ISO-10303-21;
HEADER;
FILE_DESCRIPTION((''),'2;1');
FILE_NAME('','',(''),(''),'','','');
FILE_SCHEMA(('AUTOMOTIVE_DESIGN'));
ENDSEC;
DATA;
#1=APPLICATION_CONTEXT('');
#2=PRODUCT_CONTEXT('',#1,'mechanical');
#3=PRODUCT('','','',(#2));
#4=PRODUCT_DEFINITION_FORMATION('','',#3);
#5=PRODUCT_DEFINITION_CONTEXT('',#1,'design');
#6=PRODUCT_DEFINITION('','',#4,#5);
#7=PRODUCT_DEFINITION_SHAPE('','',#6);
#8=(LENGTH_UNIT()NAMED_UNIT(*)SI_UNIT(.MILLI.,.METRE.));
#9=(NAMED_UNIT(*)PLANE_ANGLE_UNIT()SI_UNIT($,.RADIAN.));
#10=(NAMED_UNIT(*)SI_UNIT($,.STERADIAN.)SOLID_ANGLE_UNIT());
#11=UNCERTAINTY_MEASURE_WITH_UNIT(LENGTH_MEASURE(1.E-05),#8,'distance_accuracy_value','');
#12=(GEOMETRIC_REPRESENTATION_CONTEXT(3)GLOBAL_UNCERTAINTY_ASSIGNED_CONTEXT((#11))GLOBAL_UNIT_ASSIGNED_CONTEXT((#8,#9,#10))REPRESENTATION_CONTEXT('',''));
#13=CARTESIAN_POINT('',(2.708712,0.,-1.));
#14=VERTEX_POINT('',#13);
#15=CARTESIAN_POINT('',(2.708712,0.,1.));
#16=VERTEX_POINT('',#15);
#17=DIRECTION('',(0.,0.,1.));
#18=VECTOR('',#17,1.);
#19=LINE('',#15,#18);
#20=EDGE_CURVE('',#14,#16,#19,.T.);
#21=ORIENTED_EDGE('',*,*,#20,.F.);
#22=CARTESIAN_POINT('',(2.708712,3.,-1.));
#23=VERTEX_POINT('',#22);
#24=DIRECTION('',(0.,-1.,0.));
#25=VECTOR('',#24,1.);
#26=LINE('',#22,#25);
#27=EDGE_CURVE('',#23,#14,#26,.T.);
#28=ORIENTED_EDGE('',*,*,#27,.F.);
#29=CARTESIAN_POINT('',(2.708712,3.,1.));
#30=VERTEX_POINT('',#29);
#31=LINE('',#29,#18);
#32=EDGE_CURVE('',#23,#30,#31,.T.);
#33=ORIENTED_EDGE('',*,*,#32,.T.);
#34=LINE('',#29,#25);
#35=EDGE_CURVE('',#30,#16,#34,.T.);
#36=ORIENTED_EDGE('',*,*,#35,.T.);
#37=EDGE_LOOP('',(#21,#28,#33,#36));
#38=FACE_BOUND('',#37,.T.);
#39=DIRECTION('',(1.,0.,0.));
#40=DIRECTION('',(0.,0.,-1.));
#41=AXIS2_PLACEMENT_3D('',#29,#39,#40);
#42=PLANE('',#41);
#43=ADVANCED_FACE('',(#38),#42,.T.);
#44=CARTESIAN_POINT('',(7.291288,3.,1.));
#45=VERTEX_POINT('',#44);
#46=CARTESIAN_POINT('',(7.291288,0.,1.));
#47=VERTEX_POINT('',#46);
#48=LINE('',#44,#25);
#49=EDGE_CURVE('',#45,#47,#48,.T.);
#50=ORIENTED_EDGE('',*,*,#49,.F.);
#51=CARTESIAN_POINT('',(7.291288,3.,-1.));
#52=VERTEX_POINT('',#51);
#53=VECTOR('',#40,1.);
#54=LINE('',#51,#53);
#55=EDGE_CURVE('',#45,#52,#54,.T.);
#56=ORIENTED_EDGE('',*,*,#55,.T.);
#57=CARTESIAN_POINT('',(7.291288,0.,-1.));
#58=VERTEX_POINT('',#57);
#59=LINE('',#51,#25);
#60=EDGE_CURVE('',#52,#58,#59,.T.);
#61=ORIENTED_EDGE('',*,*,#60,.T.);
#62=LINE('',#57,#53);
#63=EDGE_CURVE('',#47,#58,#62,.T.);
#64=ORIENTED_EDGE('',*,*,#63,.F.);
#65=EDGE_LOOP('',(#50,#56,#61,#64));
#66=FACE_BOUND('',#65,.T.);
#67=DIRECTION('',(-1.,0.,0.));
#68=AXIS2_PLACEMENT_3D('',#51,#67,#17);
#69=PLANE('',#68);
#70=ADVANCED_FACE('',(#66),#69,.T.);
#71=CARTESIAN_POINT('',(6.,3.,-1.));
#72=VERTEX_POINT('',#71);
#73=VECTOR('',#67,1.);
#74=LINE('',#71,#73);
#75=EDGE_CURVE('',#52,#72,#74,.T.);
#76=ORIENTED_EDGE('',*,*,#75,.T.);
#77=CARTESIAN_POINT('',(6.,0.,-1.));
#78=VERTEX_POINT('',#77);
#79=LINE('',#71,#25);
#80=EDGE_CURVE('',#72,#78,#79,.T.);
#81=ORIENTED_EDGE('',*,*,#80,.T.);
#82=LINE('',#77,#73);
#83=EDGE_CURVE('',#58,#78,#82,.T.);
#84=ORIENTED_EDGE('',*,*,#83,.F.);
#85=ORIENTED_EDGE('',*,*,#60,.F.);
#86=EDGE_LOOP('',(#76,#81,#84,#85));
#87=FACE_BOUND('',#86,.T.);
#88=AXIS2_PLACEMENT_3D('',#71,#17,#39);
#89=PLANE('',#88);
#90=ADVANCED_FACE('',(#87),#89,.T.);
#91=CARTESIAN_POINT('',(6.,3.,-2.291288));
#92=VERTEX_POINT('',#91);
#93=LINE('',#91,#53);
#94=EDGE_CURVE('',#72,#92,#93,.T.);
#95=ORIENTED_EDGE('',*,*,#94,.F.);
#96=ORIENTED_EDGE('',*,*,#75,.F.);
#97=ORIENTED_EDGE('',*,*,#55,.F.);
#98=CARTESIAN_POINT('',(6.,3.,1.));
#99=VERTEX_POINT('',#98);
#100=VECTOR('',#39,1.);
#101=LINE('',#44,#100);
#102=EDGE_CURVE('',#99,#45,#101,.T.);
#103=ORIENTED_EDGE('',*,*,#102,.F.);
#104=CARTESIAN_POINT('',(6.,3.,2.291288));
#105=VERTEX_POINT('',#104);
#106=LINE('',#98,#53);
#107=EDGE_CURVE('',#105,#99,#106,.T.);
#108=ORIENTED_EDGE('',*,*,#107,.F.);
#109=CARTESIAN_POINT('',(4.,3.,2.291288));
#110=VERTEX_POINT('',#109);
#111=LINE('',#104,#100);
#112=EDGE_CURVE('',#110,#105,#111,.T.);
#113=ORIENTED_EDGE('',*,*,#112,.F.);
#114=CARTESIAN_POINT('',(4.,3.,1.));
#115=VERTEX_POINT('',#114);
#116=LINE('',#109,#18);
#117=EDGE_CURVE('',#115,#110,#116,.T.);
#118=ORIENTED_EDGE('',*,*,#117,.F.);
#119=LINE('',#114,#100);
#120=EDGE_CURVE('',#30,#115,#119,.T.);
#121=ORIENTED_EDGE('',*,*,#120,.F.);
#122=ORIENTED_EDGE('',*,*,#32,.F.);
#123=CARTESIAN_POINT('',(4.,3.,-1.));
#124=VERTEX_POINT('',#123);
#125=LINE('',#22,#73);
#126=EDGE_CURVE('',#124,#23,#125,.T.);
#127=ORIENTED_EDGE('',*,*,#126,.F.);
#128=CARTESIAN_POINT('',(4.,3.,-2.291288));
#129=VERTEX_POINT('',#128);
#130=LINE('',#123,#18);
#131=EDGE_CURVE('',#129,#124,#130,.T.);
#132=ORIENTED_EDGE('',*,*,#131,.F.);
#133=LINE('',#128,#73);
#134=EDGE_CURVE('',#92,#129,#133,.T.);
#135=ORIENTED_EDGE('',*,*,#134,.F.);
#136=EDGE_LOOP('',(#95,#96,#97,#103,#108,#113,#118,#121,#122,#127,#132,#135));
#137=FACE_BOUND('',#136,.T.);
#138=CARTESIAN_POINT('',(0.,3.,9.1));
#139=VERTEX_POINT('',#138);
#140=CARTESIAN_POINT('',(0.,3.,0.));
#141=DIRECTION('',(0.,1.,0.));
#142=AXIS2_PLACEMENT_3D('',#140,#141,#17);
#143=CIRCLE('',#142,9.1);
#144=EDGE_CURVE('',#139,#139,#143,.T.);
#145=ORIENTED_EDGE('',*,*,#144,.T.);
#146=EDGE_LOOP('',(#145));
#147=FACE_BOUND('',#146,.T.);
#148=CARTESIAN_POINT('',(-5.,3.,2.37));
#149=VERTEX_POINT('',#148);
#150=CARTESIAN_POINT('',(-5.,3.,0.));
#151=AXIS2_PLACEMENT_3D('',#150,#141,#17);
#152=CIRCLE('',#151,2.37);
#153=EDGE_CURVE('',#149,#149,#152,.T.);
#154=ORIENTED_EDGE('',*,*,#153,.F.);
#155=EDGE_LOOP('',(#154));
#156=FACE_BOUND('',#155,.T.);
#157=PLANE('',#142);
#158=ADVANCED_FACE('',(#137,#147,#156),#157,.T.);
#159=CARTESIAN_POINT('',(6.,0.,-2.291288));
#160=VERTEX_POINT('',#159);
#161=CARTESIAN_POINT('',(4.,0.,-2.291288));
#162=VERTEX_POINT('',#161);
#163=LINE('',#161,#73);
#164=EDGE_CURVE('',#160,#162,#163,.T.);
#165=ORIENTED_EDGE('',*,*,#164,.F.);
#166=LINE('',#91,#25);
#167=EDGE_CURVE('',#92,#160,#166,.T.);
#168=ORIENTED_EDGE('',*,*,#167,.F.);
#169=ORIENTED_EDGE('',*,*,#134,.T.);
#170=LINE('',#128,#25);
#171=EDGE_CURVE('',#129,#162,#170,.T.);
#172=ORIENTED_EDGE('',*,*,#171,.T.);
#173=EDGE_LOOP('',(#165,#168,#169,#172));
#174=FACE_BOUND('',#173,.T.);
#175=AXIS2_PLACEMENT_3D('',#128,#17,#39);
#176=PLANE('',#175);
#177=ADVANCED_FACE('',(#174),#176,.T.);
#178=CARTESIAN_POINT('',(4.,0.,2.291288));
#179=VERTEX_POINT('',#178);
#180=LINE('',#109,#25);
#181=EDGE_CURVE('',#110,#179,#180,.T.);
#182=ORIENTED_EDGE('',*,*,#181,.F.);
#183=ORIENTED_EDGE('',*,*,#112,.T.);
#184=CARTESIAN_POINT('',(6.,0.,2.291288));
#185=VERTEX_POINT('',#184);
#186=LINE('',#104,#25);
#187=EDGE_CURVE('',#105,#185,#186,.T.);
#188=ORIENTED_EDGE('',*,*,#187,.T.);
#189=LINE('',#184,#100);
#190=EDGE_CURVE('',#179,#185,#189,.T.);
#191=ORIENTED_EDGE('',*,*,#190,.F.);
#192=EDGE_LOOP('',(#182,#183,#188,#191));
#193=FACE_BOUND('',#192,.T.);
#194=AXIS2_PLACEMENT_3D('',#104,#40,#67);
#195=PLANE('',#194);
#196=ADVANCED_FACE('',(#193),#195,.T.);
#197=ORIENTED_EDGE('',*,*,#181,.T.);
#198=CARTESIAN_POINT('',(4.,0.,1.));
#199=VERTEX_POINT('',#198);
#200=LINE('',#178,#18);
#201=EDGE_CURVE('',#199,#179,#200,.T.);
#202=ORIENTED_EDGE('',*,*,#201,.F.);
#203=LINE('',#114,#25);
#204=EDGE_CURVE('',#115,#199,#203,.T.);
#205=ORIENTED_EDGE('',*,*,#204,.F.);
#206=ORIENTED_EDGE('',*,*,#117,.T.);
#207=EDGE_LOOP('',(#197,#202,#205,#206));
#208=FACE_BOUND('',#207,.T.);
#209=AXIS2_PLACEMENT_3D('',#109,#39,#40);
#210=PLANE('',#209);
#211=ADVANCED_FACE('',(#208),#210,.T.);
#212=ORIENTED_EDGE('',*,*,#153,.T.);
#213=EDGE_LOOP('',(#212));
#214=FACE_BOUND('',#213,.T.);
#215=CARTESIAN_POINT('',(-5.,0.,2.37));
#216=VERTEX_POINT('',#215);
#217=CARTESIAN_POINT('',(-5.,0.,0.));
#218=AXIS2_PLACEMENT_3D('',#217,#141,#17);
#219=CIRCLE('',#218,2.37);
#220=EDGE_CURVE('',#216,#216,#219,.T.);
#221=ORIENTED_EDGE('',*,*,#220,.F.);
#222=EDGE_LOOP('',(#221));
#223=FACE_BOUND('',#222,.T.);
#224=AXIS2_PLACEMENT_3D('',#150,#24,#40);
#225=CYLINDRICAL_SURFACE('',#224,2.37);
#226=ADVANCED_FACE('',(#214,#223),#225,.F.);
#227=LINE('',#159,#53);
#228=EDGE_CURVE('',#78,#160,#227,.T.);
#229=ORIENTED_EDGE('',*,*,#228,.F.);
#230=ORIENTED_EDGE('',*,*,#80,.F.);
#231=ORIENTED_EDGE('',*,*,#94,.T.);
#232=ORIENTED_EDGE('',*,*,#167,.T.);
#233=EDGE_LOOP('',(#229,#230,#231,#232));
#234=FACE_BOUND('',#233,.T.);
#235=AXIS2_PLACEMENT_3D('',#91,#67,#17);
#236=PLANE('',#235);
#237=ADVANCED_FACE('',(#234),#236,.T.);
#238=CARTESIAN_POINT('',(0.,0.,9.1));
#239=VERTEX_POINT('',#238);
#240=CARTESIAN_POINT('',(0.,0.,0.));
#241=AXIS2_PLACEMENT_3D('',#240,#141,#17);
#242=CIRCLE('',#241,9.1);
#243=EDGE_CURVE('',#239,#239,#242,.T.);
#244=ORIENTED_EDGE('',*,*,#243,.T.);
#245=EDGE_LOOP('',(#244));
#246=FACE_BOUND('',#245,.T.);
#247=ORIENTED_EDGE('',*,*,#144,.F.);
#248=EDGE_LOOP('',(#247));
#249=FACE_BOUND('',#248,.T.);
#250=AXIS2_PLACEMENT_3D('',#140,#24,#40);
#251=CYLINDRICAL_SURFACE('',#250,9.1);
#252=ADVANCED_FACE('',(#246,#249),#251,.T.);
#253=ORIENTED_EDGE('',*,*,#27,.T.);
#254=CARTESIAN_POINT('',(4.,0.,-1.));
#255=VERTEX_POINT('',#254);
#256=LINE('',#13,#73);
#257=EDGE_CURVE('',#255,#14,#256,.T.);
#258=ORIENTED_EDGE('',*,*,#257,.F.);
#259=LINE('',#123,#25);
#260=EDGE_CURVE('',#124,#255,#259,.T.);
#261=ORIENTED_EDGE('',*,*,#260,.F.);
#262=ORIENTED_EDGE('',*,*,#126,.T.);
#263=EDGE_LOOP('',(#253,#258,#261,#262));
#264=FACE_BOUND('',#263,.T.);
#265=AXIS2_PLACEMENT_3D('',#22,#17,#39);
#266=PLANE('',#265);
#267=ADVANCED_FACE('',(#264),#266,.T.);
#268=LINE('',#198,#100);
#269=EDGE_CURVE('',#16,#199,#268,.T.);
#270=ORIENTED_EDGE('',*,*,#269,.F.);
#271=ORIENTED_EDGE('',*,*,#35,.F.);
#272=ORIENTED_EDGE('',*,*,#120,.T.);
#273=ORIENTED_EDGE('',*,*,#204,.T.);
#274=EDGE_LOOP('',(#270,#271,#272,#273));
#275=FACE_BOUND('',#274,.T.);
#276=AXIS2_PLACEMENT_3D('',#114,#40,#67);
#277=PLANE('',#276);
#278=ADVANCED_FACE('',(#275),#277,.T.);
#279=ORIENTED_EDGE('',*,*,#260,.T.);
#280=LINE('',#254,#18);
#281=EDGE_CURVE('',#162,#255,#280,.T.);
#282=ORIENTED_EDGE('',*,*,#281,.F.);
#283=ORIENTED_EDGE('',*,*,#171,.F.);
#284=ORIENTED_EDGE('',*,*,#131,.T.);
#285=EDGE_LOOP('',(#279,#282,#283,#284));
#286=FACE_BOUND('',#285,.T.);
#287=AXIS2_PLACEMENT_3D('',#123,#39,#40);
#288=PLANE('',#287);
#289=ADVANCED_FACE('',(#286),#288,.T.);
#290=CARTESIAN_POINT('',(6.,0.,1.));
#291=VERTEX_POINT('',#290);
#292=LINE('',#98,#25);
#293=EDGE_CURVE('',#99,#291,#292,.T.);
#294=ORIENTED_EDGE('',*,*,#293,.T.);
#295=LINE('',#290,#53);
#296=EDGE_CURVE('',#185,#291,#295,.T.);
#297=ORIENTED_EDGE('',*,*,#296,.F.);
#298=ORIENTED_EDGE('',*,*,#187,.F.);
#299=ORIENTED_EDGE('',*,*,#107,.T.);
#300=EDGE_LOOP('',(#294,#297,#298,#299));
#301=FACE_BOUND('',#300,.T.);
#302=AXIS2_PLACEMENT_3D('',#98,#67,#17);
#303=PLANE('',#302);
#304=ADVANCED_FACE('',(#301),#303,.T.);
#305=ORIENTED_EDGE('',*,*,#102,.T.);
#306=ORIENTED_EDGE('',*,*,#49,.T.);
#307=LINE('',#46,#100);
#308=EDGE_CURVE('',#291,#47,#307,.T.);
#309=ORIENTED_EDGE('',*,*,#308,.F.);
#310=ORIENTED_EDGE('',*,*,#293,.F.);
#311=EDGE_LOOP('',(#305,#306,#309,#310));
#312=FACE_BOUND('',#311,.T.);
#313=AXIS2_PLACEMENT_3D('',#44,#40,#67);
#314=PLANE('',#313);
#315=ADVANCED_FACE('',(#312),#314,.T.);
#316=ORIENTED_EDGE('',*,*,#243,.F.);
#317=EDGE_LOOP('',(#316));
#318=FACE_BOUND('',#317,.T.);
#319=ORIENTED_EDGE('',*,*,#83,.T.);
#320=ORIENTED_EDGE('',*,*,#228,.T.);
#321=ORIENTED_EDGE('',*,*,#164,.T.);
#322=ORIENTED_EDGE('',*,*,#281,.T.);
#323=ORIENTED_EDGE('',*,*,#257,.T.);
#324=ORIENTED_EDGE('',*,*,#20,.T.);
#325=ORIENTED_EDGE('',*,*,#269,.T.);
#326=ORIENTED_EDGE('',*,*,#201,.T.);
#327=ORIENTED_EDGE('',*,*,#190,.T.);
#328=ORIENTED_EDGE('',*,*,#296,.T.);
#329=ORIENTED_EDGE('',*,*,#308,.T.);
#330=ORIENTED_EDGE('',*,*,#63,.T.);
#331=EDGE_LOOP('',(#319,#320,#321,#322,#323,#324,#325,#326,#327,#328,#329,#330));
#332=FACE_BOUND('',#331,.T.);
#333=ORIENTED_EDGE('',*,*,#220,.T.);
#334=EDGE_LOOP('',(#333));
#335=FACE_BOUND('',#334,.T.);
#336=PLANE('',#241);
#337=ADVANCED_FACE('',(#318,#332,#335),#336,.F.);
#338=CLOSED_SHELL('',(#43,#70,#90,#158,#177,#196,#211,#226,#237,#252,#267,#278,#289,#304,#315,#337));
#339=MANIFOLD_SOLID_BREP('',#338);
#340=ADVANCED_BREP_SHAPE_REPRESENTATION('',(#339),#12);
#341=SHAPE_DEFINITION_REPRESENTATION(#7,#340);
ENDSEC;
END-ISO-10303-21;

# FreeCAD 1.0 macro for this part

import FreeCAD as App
import Part
import Sketcher

V = App.Vector


def add_polygon(sketch, points):
    """Adds a closed chain of lines whose ends are joined by coincident constraints."""
    first, n = sketch.GeometryCount, len(points)
    for a, b in zip(points, points[1:] + points[:1]):
        sketch.addGeometry(Part.LineSegment(App.Vector(*a, 0), App.Vector(*b, 0)), False)
    for i in range(n):
        sketch.addConstraint(Sketcher.Constraint("Coincident", first + i, 2, first + (i + 1) % n, 1))

doc = App.newDocument("Part")
body = doc.addObject("PartDesign::Body", "Body")

# Sketch on XZ plane
sketch1 = doc.addObject("Sketcher::SketchObject", "Sketch")
body.addObject(sketch1)
sketch1.AttachmentSupport = (doc.XZ_Plane, [""])
sketch1.MapMode = "FlatFace"
sketch1.addGeometry(Part.Circle(V(0, 0, 0), V(0, 0, 1), 9.1), False)  # 0
sketch1.addGeometry(Part.Circle(V(-5, 0, 0), V(0, 0, 1), 2.4), False)  # 1
add_polygon(sketch1, [(7.3, -1), (7.3, 1), (6, 1), (6, 2.3), (4, 2.3), (4, 1), (2.7, 1), (2.7, -1), (4, -1), (4, -2.3), (6, -2.3), (6, -1)])  # lines 2-13
sketch1.addConstraint([
    Sketcher.Constraint("Vertical", 2),
    Sketcher.Constraint("Horizontal", 3),
    Sketcher.Constraint("Vertical", 4),
    Sketcher.Constraint("Horizontal", 5),
    Sketcher.Constraint("Vertical", 6),
    Sketcher.Constraint("Horizontal", 7),
    Sketcher.Constraint("Vertical", 8),
    Sketcher.Constraint("Horizontal", 9),
    Sketcher.Constraint("Vertical", 10),
    Sketcher.Constraint("Horizontal", 11),
    Sketcher.Constraint("Vertical", 12),
    Sketcher.Constraint("Horizontal", 13),
    Sketcher.Constraint("Coincident", 0, 3, -1, 1),
    Sketcher.Constraint("Symmetric", 6, 2, 9, 2, -1),
    Sketcher.Constraint("Symmetric", 4, 2, 11, 2, -1),
    Sketcher.Constraint("PointOnObject", 1, 3, -1),
    Sketcher.Constraint("Horizontal", 3, 2, 6, 2),
    Sketcher.Constraint("Horizontal", 9, 2, 12, 2),
    Sketcher.Constraint("Equal", 3, 7),
    Sketcher.Constraint("Equal", 11, 2),
    Sketcher.Constraint("Equal", 13, 4),
    Sketcher.Constraint("Diameter", 0, 18.2),
    Sketcher.Constraint("Diameter", 1, 4.74),
    Sketcher.Constraint("DistanceX", 5, 2, 5, 1, 2.0),
    Sketcher.Constraint("DistanceX", 1, 3, -1, 1, 5.0),
    Sketcher.Constraint("DistanceX", -1, 1, 3, 2, 6.0),
    Sketcher.Constraint("DistanceX", 3, 2, 3, 1, 1.291288),
])
pad1 = doc.addObject("PartDesign::Pad", "Pad")
body.addObject(pad1)
pad1.Profile = sketch1
pad1.Length = 3
pad1.Reversed = True

doc.recompute()
